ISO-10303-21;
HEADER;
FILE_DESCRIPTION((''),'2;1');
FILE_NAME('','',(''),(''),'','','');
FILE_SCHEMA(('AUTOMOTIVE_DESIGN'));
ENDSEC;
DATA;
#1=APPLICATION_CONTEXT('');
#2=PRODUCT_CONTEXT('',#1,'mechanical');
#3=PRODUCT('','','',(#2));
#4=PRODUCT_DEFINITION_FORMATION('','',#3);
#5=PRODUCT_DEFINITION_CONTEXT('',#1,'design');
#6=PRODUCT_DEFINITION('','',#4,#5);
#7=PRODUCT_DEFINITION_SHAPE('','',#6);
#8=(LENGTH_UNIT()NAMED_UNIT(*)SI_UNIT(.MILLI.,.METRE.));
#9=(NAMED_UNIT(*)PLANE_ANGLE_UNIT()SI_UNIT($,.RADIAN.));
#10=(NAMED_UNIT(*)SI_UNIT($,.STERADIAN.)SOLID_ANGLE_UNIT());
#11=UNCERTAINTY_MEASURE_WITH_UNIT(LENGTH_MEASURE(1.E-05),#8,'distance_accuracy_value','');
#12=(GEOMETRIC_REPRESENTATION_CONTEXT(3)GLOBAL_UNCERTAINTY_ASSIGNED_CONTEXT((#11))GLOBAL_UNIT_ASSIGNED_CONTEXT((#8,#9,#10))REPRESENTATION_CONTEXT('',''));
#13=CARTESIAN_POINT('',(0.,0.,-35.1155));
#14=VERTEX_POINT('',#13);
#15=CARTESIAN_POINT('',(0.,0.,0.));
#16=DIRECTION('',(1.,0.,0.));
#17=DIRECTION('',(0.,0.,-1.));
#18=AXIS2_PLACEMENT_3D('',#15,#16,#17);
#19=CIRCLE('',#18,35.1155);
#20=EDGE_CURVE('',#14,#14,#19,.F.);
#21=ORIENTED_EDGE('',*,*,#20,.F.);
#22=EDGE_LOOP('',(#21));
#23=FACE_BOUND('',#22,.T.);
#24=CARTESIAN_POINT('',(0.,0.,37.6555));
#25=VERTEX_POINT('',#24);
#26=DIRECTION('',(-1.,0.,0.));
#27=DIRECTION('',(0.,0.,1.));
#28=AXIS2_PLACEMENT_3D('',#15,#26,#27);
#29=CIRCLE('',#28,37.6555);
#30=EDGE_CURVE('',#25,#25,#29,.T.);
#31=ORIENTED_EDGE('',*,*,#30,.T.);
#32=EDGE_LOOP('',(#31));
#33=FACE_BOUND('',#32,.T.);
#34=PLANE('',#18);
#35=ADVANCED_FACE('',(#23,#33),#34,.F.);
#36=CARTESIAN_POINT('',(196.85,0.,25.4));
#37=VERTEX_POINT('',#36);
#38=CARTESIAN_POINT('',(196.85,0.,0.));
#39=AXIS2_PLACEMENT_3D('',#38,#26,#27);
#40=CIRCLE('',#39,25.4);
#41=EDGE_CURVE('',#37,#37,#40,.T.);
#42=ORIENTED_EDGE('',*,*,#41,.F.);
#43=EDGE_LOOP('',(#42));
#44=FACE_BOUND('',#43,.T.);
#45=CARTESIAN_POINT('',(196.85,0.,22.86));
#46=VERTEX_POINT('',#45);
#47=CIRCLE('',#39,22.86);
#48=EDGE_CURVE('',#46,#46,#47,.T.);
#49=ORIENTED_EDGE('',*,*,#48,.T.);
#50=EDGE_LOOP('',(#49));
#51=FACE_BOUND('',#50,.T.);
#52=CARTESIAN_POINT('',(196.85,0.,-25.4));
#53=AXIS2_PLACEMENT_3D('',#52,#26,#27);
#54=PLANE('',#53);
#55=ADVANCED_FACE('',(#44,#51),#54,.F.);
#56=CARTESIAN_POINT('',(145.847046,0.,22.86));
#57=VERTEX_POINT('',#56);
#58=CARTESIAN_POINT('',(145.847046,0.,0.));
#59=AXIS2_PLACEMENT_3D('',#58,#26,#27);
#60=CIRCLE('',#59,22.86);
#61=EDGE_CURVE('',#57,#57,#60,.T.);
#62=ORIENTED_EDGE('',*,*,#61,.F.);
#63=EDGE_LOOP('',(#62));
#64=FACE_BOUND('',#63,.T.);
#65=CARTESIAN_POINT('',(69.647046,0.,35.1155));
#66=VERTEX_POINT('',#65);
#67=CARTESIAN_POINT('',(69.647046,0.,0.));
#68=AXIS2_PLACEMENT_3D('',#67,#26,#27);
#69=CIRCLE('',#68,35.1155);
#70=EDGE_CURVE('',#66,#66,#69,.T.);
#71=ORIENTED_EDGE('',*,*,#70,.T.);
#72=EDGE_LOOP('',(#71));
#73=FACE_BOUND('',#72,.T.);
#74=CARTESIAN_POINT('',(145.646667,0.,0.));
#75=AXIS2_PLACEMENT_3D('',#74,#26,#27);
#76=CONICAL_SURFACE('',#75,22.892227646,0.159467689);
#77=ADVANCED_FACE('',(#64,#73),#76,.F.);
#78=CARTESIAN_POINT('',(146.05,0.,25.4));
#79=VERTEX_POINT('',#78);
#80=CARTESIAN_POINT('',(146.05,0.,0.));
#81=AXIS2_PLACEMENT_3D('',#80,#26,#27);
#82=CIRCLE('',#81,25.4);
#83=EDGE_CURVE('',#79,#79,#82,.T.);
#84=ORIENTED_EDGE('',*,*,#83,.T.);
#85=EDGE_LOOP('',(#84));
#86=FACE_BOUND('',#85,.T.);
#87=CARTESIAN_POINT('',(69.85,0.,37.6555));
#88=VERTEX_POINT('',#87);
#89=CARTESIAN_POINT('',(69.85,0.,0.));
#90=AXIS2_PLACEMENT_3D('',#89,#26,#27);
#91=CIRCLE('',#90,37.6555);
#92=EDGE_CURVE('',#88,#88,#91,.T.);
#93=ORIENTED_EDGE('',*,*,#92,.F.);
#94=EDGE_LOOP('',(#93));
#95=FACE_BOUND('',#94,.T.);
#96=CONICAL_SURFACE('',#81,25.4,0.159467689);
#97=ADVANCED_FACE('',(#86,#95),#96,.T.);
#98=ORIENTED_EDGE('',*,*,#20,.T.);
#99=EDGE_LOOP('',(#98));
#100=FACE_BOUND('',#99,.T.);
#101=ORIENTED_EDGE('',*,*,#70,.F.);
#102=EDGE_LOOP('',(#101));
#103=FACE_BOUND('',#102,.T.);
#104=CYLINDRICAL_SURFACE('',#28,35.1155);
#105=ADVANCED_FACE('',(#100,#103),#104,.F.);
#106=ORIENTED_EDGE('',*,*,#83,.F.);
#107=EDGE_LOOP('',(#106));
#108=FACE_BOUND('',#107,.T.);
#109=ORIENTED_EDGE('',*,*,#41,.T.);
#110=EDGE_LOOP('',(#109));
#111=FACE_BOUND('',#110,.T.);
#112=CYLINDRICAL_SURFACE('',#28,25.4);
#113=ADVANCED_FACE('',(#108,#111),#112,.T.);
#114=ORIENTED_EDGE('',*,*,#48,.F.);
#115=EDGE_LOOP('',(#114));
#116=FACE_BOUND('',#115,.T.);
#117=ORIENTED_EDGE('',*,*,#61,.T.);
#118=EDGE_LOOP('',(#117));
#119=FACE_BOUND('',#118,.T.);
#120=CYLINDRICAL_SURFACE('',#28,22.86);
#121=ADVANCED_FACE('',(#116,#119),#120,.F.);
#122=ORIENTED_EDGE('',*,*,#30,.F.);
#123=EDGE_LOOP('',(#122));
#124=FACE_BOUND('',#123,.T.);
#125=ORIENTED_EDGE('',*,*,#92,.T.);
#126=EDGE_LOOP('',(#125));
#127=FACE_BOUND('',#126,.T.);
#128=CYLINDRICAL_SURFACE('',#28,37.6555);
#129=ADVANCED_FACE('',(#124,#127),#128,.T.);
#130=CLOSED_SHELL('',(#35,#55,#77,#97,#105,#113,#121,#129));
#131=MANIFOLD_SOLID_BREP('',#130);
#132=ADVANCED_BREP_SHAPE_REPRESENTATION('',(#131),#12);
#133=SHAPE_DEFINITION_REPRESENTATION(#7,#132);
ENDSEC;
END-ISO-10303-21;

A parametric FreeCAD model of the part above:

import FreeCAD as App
import Part
import Sketcher

V = App.Vector
Q = App.Units.Quantity


def faces_at(feature, points):
    """Names of the faces that lie closest to the given points."""
    faces = feature.Shape.Faces
    near = lambda p: min(range(len(faces)), key=lambda i: faces[i].distToShape(Part.Vertex(*p))[0])
    return sorted({f"Face{near(p) + 1}" for p in points})

doc = App.newDocument("Part")
params = doc.addObject("Spreadsheet::Sheet", "Params")
for row, (alias, value) in enumerate([
    ("sketch1_width", "2 in"),
    ("sketch1_height", "1 in"),
    ("sketch1_width2", "7.75 in"),
    ("revolution_angle", "360 deg"),
    ("thickness_wall", "0.1 in"),
], start=1):
    params.set(f"A{row}", alias)
    params.set(f"B{row}", "=" + value)
    params.setAlias(f"B{row}", alias)

body = doc.addObject("PartDesign::Body", "Body")

sketch1 = body.newObject("Sketcher::SketchObject", "Sketch")
sketch1.AttachmentSupport = (doc.getObject("XZ_Plane"), [""])
sketch1.MapMode = "FlatFace"
sketch1.addGeometry([
    Part.LineSegment(V(0, -37.6555, 0), V(0, 0, 0)),
    Part.LineSegment(V(0, 0, 0), V(196.85, 0, 0)),
    Part.LineSegment(V(196.85, 0, 0), V(196.85, -25.4, 0)),
    Part.LineSegment(V(196.85, -25.4, 0), V(146.05, -25.4, 0)),
    Part.LineSegment(V(146.05, -25.4, 0), V(69.85, -37.6555, 0)),
    Part.LineSegment(V(69.85, -37.6555, 0), V(0, -37.6555, 0)),
], False)
sketch1.addConstraint([
    Sketcher.Constraint("Coincident", 0, 2, 1, 1),
    Sketcher.Constraint("Coincident", 1, 2, 2, 1),
    Sketcher.Constraint("Coincident", 2, 2, 3, 1),
    Sketcher.Constraint("Coincident", 3, 2, 4, 1),
    Sketcher.Constraint("Coincident", 4, 2, 5, 1),
    Sketcher.Constraint("Coincident", 5, 2, 0, 1),
    Sketcher.Constraint("Vertical", 0),
    Sketcher.Constraint("Horizontal", 1),
    Sketcher.Constraint("Vertical", 2),
    Sketcher.Constraint("Horizontal", 3),
    Sketcher.Constraint("Horizontal", 5),
    Sketcher.Constraint("Coincident", 0, 2, -1, 1),
    Sketcher.Constraint("DistanceX", 3, 2, 3, 1, Q("2 in")),
    Sketcher.Constraint("DistanceY", 2, 2, 2, 1, Q("1 in")),
    Sketcher.Constraint("DistanceX", 4, 2, 3, 2, Q("3 in")),
    Sketcher.Constraint("DistanceX", 1, 1, 1, 2, Q("7.75 in")),
    Sketcher.Constraint("DistanceY", 0, 1, 0, 2, Q("1.4825 in")),
])
sketch1.setExpression("Constraints[12]", "Params.sketch1_width")
sketch1.setExpression("Constraints[13]", "Params.sketch1_height")
sketch1.setExpression("Constraints[15]", "Params.sketch1_width2")
revolution = body.newObject("PartDesign::Revolution", "Revolution")
revolution.Profile = sketch1
revolution.ReferenceAxis = (sketch1, ["H_Axis"])
revolution.setExpression("Angle", "Params.revolution_angle")
doc.recompute()

thickness = body.newObject("PartDesign::Thickness", "Thickness")
thickness.Base = (revolution, faces_at(revolution, [(196.85, 0, 0), (0, 0, 0)]))
thickness.setExpression("Value", "Params.thickness_wall")
thickness.Reversed = True
thickness.Join = "Intersection"

doc.recompute()
